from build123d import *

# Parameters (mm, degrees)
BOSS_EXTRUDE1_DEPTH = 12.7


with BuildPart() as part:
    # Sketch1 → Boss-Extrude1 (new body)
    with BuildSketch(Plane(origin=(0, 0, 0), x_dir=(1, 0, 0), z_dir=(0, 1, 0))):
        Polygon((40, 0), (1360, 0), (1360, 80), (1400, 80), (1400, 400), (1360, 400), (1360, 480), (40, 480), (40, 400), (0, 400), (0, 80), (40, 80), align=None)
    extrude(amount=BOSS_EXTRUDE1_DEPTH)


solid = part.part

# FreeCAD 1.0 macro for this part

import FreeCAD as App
import Part
import Sketcher


def add_polygon(sketch, points):
    """Adds a closed chain of lines whose ends are joined by coincident constraints."""
    first, n = sketch.GeometryCount, len(points)
    for a, b in zip(points, points[1:] + points[:1]):
        sketch.addGeometry(Part.LineSegment(App.Vector(*a, 0), App.Vector(*b, 0)), False)
    for i in range(n):
        sketch.addConstraint(Sketcher.Constraint("Coincident", first + i, 2, first + (i + 1) % n, 1))

doc = App.newDocument("Part")
body = doc.addObject("PartDesign::Body", "Body")

# Sketch on XZ plane
sketch1 = body.newObject("Sketcher::SketchObject", "Sketch")
sketch1.AttachmentSupport = (doc.getObject("XZ_Plane"), [""])
sketch1.MapMode = "FlatFace"
add_polygon(sketch1, [(40, 0), (1360, 0), (1360, -80), (1400, -80), (1400, -400), (1360, -400), (1360, -480), (40, -480), (40, -400), (0, -400), (0, -80), (40, -80)])  # lines 0-11
sketch1.addConstraint([
    Sketcher.Constraint("Horizontal", 0),
    Sketcher.Constraint("Vertical", 1),
    Sketcher.Constraint("Horizontal", 2),
    Sketcher.Constraint("Vertical", 3),
    Sketcher.Constraint("Horizontal", 4),
    Sketcher.Constraint("Vertical", 5),
    Sketcher.Constraint("Horizontal", 6),
    Sketcher.Constraint("Vertical", 7),
    Sketcher.Constraint("Horizontal", 8),
    Sketcher.Constraint("Vertical", 9),
    Sketcher.Constraint("Horizontal", 10),
    Sketcher.Constraint("Vertical", 11),
    Sketcher.Constraint("PointOnObject", 0, 2, -1),
    Sketcher.Constraint("PointOnObject", 8, 2, -2),
    Sketcher.Constraint("Horizontal", 4, 2, 7, 2),
    Sketcher.Constraint("Horizontal", 2, 2, 9, 2),
    Sketcher.Constraint("Vertical", 1, 2, 4, 2),
    Sketcher.Constraint("Vertical", 7, 2, 10, 2),
    Sketcher.Constraint("Equal", 4, 8),
    Sketcher.Constraint("Equal", 1, 5),
    Sketcher.Constraint("DistanceX", 0, 1, 0, 2, 1320.0),
    Sketcher.Constraint("DistanceX", 2, 1, 2, 2, 40.0),
    Sketcher.Constraint("DistanceY", 1, 2, 1, 1, 80.0),
    Sketcher.Constraint("DistanceY", 3, 2, 3, 1, 320.0),
])
pad1 = body.newObject("PartDesign::Pad", "Pad")
pad1.Profile = sketch1
pad1.Length = 12.7
pad1.Reversed = True

doc.recompute()
